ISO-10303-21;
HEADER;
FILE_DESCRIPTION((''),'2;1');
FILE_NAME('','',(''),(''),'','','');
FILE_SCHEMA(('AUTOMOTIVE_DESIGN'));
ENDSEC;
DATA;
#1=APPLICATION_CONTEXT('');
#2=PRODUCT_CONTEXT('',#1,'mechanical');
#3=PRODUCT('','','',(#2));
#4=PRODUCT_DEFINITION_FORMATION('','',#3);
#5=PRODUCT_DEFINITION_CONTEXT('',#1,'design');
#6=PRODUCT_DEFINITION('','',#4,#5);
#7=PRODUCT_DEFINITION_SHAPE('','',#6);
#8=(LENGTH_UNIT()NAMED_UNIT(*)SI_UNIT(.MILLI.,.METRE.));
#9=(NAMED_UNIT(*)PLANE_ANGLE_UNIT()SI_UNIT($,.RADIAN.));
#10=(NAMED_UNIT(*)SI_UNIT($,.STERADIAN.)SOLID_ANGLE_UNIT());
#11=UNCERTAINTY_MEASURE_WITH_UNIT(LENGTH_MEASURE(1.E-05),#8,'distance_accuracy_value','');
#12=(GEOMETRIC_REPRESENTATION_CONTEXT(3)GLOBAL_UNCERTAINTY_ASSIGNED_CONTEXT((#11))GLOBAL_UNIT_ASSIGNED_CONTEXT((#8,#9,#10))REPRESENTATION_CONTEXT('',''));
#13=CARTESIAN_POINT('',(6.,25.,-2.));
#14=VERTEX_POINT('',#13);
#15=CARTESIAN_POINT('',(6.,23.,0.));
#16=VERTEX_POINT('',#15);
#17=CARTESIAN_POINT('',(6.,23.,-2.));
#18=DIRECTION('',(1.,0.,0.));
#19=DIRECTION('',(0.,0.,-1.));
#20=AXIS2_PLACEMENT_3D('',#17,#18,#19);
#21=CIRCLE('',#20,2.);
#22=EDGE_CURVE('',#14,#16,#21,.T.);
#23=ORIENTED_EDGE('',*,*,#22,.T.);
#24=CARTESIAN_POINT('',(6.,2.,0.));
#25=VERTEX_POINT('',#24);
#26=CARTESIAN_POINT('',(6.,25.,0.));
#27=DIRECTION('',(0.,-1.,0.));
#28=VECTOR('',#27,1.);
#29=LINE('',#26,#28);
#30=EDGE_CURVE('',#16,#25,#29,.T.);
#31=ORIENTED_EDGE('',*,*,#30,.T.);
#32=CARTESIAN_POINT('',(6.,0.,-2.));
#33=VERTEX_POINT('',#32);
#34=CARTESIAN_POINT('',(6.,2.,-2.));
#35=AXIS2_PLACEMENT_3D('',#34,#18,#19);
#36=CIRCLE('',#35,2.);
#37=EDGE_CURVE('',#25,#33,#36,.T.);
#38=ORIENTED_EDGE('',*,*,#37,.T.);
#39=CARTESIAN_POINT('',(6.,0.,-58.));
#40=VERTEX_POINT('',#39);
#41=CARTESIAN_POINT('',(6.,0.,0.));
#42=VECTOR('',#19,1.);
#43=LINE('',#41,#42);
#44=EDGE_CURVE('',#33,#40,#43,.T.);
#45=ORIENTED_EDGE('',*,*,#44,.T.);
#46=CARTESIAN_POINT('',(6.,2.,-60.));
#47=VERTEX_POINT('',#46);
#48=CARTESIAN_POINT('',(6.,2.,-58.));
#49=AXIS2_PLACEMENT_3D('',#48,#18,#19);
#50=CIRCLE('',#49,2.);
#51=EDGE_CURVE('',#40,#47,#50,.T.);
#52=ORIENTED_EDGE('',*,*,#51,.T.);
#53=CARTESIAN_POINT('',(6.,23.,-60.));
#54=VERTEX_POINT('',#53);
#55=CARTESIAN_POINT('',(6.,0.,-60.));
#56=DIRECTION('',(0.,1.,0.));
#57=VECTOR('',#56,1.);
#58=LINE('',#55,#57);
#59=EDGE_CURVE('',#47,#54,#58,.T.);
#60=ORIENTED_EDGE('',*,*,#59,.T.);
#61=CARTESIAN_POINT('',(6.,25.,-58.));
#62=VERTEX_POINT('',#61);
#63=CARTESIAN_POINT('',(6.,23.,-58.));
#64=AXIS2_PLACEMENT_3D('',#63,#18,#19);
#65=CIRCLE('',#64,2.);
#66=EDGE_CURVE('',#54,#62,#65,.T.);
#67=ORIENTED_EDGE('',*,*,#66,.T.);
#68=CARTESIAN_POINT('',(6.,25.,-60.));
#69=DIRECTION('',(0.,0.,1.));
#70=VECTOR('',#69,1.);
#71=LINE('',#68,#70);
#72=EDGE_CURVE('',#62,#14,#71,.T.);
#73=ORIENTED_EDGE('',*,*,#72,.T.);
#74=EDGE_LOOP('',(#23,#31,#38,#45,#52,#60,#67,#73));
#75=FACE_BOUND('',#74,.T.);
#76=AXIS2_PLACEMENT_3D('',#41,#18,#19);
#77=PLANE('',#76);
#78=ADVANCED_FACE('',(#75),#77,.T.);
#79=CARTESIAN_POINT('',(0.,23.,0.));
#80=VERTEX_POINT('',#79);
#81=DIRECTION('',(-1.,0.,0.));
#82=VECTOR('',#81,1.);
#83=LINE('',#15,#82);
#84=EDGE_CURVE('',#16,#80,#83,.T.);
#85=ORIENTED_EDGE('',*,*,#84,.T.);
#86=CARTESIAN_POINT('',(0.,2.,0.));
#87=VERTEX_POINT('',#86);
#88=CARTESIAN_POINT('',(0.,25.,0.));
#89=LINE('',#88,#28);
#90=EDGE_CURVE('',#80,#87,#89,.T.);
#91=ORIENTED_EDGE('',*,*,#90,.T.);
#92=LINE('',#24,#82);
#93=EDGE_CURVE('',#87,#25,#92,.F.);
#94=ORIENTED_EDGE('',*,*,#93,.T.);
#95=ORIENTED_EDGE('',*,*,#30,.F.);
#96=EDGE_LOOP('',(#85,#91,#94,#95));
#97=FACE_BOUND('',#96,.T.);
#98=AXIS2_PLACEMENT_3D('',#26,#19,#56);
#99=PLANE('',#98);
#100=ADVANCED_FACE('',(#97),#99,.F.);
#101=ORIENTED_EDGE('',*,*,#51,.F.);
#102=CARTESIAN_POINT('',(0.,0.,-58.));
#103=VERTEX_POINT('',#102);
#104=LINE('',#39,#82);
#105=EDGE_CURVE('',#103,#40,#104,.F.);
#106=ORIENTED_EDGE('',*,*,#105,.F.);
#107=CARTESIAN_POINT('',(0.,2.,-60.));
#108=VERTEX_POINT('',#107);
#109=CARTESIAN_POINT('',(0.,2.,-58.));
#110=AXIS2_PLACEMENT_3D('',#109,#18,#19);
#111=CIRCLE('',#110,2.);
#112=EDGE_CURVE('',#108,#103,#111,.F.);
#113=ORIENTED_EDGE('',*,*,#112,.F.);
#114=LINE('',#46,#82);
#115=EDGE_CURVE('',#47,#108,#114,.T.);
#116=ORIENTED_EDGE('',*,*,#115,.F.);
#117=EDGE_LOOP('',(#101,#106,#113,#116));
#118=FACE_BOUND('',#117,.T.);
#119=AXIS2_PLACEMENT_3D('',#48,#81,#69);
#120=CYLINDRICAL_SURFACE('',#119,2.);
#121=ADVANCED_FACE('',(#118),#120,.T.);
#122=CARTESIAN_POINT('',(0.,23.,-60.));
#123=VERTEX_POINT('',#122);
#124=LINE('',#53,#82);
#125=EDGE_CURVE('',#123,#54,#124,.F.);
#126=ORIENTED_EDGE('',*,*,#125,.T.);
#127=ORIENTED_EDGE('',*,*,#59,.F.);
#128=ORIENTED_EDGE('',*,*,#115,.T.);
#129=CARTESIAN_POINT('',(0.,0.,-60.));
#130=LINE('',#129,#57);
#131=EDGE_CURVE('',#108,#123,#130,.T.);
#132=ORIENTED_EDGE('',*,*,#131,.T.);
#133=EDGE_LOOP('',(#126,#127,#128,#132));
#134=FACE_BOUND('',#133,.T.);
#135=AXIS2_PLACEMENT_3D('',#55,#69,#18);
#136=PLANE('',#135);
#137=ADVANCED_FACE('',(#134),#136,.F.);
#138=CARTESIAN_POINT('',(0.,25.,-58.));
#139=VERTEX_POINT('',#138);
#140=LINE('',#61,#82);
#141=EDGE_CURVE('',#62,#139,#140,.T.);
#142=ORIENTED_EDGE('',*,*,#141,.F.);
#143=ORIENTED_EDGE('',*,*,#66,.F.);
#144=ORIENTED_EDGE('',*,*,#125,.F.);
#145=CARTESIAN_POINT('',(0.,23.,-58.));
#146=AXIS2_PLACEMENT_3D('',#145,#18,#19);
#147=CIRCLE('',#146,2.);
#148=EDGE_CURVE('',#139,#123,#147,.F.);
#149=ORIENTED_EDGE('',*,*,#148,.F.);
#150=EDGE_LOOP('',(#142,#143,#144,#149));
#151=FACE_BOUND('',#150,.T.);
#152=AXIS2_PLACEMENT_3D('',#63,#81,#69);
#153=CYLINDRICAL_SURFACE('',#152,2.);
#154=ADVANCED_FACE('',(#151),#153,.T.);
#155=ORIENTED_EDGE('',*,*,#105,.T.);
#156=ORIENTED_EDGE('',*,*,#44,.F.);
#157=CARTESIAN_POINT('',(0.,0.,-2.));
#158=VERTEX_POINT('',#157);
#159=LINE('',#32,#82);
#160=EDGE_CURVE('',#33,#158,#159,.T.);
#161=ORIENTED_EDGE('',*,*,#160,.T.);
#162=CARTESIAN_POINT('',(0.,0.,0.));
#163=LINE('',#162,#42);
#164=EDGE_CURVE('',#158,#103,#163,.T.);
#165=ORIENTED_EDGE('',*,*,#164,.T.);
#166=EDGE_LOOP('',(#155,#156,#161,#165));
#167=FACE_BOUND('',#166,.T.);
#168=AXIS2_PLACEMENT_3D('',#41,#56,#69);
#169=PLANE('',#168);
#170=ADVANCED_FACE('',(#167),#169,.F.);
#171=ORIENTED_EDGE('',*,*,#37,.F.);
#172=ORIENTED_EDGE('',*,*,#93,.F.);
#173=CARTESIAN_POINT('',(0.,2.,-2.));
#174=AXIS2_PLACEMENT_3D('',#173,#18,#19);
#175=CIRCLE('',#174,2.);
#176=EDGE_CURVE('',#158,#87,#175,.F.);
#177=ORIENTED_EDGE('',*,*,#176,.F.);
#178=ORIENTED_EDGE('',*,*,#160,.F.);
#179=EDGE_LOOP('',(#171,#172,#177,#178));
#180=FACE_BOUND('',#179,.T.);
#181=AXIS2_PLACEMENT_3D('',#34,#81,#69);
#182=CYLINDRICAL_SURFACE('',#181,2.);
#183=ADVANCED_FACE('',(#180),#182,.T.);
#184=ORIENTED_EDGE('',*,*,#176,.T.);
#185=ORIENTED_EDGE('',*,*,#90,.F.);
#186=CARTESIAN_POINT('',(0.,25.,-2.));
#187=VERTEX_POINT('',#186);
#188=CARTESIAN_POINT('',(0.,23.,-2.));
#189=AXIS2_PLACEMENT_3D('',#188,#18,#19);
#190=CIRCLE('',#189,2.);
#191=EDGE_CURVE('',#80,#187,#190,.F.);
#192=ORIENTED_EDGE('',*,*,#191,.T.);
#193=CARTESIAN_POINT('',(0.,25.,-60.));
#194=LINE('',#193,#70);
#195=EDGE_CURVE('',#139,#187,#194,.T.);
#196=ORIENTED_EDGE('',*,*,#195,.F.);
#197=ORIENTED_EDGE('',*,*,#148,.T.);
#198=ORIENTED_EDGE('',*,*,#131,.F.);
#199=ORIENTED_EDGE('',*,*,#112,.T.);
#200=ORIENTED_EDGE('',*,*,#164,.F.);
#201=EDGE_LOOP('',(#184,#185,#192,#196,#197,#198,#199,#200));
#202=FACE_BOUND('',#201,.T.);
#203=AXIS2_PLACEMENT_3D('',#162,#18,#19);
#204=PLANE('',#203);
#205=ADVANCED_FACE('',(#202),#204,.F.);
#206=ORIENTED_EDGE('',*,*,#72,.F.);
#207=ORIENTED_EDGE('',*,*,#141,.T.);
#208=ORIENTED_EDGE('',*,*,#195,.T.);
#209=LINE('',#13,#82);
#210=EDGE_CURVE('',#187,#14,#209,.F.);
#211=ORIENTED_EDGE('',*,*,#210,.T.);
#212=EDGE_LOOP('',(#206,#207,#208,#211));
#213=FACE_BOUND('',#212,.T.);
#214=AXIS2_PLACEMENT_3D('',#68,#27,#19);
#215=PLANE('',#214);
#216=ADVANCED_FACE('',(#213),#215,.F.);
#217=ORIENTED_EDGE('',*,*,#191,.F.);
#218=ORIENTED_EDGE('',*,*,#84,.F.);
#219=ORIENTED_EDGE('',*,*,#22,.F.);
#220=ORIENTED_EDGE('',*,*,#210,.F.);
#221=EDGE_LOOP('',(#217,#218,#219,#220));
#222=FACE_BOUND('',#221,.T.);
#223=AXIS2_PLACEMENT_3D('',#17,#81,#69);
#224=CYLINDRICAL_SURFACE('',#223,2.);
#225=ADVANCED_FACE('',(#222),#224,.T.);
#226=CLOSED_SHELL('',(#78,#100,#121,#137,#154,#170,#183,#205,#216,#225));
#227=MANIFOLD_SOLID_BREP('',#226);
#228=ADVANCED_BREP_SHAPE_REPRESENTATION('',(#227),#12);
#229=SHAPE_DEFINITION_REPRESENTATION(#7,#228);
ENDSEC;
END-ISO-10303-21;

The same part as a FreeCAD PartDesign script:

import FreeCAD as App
import Part
import Sketcher
Q = App.Units.Quantity


def edges_at(feature, points):
    """Names of the edges that pass closest to the given points."""
    edges = feature.Shape.Edges
    near = lambda p: min(range(len(edges)), key=lambda i: edges[i].distToShape(Part.Vertex(*p))[0])
    return sorted({f"Edge{near(p) + 1}" for p in points})

doc = App.newDocument("Part")
body = doc.addObject("PartDesign::Body", "Body")

sketch1 = doc.addObject("Sketcher::SketchObject", "Sketch")
body.addObject(sketch1)
sketch1.AttachmentSupport = (doc.YZ_Plane, [""])
sketch1.MapMode = "FlatFace"
sketch1.addGeometry(Part.LineSegment(App.Vector(25, 0, 0), App.Vector(0, 0, 0)), False)
sketch1.addGeometry(Part.LineSegment(App.Vector(0, 0, 0), App.Vector(0, -60, 0)), False)
sketch1.addGeometry(Part.LineSegment(App.Vector(0, -60, 0), App.Vector(25, -60, 0)), False)
sketch1.addGeometry(Part.LineSegment(App.Vector(25, -60, 0), App.Vector(25, 0, 0)), False)
sketch1.addConstraint(Sketcher.Constraint("Coincident", 0, 2, 1, 1))
sketch1.addConstraint(Sketcher.Constraint("Coincident", 1, 2, 2, 1))
sketch1.addConstraint(Sketcher.Constraint("Coincident", 2, 2, 3, 1))
sketch1.addConstraint(Sketcher.Constraint("Coincident", 3, 2, 0, 1))
sketch1.addConstraint(Sketcher.Constraint("Horizontal", 0))
sketch1.addConstraint(Sketcher.Constraint("Vertical", 1))
sketch1.addConstraint(Sketcher.Constraint("Horizontal", 2))
sketch1.addConstraint(Sketcher.Constraint("Vertical", 3))
sketch1.addConstraint(Sketcher.Constraint("Coincident", 0, 2, -1, 1))
sketch1.addConstraint(Sketcher.Constraint("DistanceX", 0, 2, 0, 1, Q("25 mm")))
sketch1.addConstraint(Sketcher.Constraint("DistanceY", 1, 2, 1, 1, Q("60 mm")))
pad1 = doc.addObject("PartDesign::Pad", "Pad")
body.addObject(pad1)
pad1.Profile = sketch1
pad1.Length = 6
doc.recompute()

fillet = doc.addObject("PartDesign::Fillet", "Fillet")
body.addObject(fillet)
fillet.Base = (pad1, edges_at(pad1, [
    (3, 25, 0),
    (3, 25, -60),
    (3, 0, -60),
    (3, 0, 0),
]))
fillet.Radius = 2

doc.recompute()
